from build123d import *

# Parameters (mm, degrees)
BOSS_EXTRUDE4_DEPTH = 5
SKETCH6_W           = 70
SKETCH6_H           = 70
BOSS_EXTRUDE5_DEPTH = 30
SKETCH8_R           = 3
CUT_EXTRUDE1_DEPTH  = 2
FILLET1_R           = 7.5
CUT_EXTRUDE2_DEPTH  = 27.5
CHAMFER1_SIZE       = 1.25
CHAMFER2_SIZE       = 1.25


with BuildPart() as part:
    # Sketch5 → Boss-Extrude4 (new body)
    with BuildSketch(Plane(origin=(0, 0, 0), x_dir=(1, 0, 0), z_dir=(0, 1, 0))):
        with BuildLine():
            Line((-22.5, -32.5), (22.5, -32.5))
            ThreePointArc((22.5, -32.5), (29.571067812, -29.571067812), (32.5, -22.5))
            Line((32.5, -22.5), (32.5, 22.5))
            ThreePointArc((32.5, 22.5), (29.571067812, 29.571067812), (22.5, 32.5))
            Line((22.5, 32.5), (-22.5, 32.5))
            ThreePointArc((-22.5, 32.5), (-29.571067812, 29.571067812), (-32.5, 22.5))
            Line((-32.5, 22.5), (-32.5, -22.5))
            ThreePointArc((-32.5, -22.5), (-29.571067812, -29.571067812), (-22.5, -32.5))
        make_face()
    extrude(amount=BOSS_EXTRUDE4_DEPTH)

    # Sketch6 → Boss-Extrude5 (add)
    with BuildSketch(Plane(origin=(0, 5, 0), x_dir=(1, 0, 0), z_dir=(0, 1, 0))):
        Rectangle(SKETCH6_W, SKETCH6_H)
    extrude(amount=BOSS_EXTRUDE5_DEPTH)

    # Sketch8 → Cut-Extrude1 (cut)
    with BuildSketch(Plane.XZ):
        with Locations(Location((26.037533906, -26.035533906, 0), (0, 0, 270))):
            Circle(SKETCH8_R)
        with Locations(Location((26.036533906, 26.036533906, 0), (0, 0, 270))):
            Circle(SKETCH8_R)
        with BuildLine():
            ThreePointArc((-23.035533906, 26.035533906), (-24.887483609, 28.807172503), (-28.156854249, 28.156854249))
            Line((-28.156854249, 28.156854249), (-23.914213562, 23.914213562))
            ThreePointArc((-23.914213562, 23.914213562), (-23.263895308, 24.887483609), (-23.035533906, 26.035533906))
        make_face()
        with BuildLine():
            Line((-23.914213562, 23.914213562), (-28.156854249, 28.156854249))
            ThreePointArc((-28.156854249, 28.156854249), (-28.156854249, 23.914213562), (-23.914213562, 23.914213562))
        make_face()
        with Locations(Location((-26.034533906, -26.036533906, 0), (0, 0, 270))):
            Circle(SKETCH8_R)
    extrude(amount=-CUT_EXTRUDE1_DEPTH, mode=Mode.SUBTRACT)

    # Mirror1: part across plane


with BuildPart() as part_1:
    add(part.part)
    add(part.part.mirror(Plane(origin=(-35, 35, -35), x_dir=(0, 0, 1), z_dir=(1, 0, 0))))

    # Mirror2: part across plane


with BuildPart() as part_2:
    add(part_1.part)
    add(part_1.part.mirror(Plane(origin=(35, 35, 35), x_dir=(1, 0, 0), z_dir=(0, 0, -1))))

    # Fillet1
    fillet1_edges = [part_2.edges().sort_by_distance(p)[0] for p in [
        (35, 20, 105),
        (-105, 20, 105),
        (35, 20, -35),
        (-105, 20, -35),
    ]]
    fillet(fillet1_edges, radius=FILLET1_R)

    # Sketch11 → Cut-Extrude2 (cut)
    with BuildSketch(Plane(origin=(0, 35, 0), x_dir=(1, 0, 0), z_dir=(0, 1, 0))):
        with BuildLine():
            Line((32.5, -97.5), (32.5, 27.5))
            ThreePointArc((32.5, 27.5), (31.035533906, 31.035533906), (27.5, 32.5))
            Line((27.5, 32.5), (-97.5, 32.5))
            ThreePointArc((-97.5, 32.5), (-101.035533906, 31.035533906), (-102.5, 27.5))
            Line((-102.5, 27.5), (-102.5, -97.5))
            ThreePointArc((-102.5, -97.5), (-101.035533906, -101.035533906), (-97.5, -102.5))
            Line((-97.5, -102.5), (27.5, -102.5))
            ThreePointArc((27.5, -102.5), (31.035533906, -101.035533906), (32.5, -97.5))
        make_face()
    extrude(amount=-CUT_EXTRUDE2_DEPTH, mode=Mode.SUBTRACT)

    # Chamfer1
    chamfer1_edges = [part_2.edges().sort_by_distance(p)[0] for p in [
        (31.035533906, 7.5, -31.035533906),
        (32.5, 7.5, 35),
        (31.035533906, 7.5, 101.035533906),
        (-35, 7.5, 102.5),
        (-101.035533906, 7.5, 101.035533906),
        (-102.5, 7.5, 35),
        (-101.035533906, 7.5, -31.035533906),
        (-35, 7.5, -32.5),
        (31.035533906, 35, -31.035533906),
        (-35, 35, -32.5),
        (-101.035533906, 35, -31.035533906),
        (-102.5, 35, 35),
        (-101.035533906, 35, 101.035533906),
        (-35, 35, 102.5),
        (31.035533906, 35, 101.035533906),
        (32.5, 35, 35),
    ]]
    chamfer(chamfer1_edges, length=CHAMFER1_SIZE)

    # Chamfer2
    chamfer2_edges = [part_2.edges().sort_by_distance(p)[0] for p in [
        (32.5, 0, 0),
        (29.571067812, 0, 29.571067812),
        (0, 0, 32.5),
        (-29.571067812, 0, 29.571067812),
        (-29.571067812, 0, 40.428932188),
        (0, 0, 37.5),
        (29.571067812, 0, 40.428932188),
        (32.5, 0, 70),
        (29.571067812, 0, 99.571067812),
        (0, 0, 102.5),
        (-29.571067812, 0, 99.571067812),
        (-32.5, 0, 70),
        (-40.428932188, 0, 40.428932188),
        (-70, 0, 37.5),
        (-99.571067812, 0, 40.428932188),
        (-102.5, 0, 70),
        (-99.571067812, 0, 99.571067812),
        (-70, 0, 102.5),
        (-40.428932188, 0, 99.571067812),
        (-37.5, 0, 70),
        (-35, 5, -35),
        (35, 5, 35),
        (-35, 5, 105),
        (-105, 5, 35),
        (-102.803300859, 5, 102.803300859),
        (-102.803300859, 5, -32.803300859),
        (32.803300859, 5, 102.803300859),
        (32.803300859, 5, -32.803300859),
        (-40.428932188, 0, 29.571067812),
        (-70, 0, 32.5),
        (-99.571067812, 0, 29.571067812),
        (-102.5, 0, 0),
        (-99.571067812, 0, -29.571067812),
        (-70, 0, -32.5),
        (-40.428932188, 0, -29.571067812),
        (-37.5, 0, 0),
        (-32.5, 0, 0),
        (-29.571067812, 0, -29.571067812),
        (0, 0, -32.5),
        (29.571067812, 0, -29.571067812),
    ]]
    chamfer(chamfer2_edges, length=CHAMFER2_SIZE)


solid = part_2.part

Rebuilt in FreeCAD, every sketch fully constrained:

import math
import FreeCAD as App
import Part
import Sketcher

V = App.Vector
Q = App.Units.Quantity


def edges_at(feature, points):
    """Names of the edges that pass closest to the given points."""
    edges = feature.Shape.Edges
    near = lambda p: min(range(len(edges)), key=lambda i: edges[i].distToShape(Part.Vertex(*p))[0])
    return sorted({f"Edge{near(p) + 1}" for p in points})


def add_polygon(sketch, points):
    """Adds a closed chain of lines whose ends are joined by coincident constraints."""
    first, n = sketch.GeometryCount, len(points)
    for a, b in zip(points, points[1:] + points[:1]):
        sketch.addGeometry(Part.LineSegment(App.Vector(*a, 0), App.Vector(*b, 0)), False)
    for i in range(n):
        sketch.addConstraint(Sketcher.Constraint("Coincident", first + i, 2, first + (i + 1) % n, 1))

doc = App.newDocument("Part")
params = doc.addObject("Spreadsheet::Sheet", "Params")
for row, (alias, value) in enumerate([
    ("sketch1_radius", "10 mm"),
    ("sketch1_width", "45 mm"),
    ("pad1_length", "5 mm"),
    ("sketch2_width", "70 mm"),
    ("pad2_length", "30 mm"),
    ("sketch3_diameter", "6 mm"),
    ("pocket1_length", "2 mm"),
    ("fillet_radius", "7.5 mm"),
    ("sketch4_radius", "5 mm"),
    ("sketch4_width", "125 mm"),
    ("pocket2_length", "27.5 mm"),
    ("chamfer_size", "1.25 mm"),
    ("chamfer2_size", "1.25 mm"),
], start=1):
    params.set(f"A{row}", alias)
    params.set(f"B{row}", "=" + value)
    params.setAlias(f"B{row}", alias)

body = doc.addObject("PartDesign::Body", "Body")

# Sketch on XZ plane
sketch1 = body.newObject("Sketcher::SketchObject", "Sketch")
sketch1.AttachmentSupport = (doc.getObject("XZ_Plane"), [""])
sketch1.MapMode = "FlatFace"
sketch1.addGeometry([
    Part.LineSegment(V(-22, 32, 0), V(22, 32, 0)),  # 0
    Part.ArcOfCircle(Part.Circle(V(22, 22, 0), V(0, 0, 1), 10), math.radians(0), math.radians(90)),  # 1
    Part.LineSegment(V(32, 22, 0), V(32, -22, 0)),  # 2
    Part.ArcOfCircle(Part.Circle(V(22, -22, 0), V(0, 0, 1), 10), math.radians(-90), math.radians(0)),  # 3
    Part.LineSegment(V(22, -32, 0), V(-22, -32, 0)),  # 4
    Part.ArcOfCircle(Part.Circle(V(-22, -22, 0), V(0, 0, 1), 10), math.radians(180), math.radians(270)),  # 5
    Part.LineSegment(V(-32, -22, 0), V(-32, 22, 0)),  # 6
    Part.ArcOfCircle(Part.Circle(V(-22, 22, 0), V(0, 0, 1), 10), math.radians(90), math.radians(180)),  # 7
], False)
sketch1.addConstraint([
    Sketcher.Constraint("Tangent", 0, 2, 1, 2),
    Sketcher.Constraint("Tangent", 1, 1, 2, 1),
    Sketcher.Constraint("Tangent", 2, 2, 3, 2),
    Sketcher.Constraint("Tangent", 3, 1, 4, 1),
    Sketcher.Constraint("Tangent", 4, 2, 5, 2),
    Sketcher.Constraint("Tangent", 5, 1, 6, 1),
    Sketcher.Constraint("Tangent", 6, 2, 7, 2),
    Sketcher.Constraint("Tangent", 7, 1, 0, 1),
    Sketcher.Constraint("Horizontal", 0),
    Sketcher.Constraint("Vertical", 2),
    Sketcher.Constraint("Horizontal", 4),
    Sketcher.Constraint("Vertical", 6),
    Sketcher.Constraint("Equal", 1, 3),
    Sketcher.Constraint("Equal", 3, 5),
    Sketcher.Constraint("Equal", 5, 7),
    Sketcher.Constraint("Symmetric", 1, 3, 5, 3, -1, 1),
    Sketcher.Constraint("Equal", 4, 2),
    Sketcher.Constraint("Radius", 1, Q("10 mm")),
    Sketcher.Constraint("DistanceX", 0, 1, 0, 2, Q("45 mm")),
])
sketch1.setExpression("Constraints[17]", "Params.sketch1_radius")
sketch1.setExpression("Constraints[18]", "Params.sketch1_width")
pad1 = body.newObject("PartDesign::Pad", "Pad")
pad1.Profile = sketch1
pad1.setExpression("Length", "Params.pad1_length")
pad1.Reversed = True

# Sketch on XZ plane
sketch2 = body.newObject("Sketcher::SketchObject", "Sketch001")
sketch2.AttachmentSupport = (doc.getObject("XZ_Plane"), [""])
sketch2.MapMode = "FlatFace"
sketch2.AttachmentOffset = App.Placement(V(0, 0, -5), App.Rotation())
add_polygon(sketch2, [(-35, -35), (-35, 35), (35, 35), (35, -35)])  # lines 0-3
sketch2.addConstraint([
    Sketcher.Constraint("Vertical", 0),
    Sketcher.Constraint("Horizontal", 1),
    Sketcher.Constraint("Vertical", 2),
    Sketcher.Constraint("Horizontal", 3),
    Sketcher.Constraint("Symmetric", 0, 2, 2, 2, -1, 1),
    Sketcher.Constraint("Equal", 3, 0),
    Sketcher.Constraint("DistanceX", 1, 1, 1, 2, Q("70 mm")),
])
sketch2.setExpression("Constraints[10]", "Params.sketch2_width")
pad2 = body.newObject("PartDesign::Pad", "Pad001")
pad2.Profile = sketch2
pad2.setExpression("Length", "Params.pad2_length")
pad2.Reversed = True

# Sketch on XZ plane
sketch3 = body.newObject("Sketcher::SketchObject", "Sketch002")
sketch3.AttachmentSupport = (doc.getObject("XZ_Plane"), [""])
sketch3.MapMode = "FlatFace"
sketch3.addGeometry([
    Part.Circle(V(26, -26, 0), V(0, 0, 1), 3),  # 0
    Part.Circle(V(26, 26, 0), V(0, 0, 1), 3),  # 1
    Part.ArcOfCircle(Part.Circle(V(-26, 26, 0), V(0, 0, 1), 3), math.radians(0), math.radians(135)),  # 2
    Part.ArcOfCircle(Part.Circle(V(-26, 26, 0), V(0, 0, 1), 3), math.radians(135), math.radians(315)),  # 3
    Part.ArcOfCircle(Part.Circle(V(-26, 26, 0), V(0, 0, 1), 3), math.radians(-45), math.radians(0)),  # 4
    Part.Circle(V(-26, -26, 0), V(0, 0, 1), 3),  # 5
], False)
sketch3.addConstraint([
    Sketcher.Constraint("Tangent", 2, 2, 3, 1),
    Sketcher.Constraint("Tangent", 3, 2, 4, 1),
    Sketcher.Constraint("Tangent", 4, 2, 2, 1),
    Sketcher.Constraint("Equal", 0, 1),
    Sketcher.Constraint("Equal", 1, 2),
    Sketcher.Constraint("Equal", 4, 5),
    Sketcher.Constraint("Horizontal", 3, 3, 4, 2),
    Sketcher.Constraint("Diameter", 0, Q("6 mm")),
    Sketcher.Constraint("DistanceX", 1, 3, 0, 3, Q("0.001 mm")),
    Sketcher.Constraint("DistanceY", 2, 3, 1, 3, Q("0.001 mm")),
    Sketcher.Constraint("DistanceX", 3, 3, 5, 3, Q("0.001 mm")),
    Sketcher.Constraint("DistanceY", 5, 3, 0, 3, Q("0.001 mm")),
    Sketcher.Constraint("DistanceX", 2, 2, 2, 3, Q("2.12132 mm")),
    Sketcher.Constraint("DistanceX", 2, 2, 1, 3, Q("54.193388 mm")),
    Sketcher.Constraint("DistanceY", 5, 3, 2, 2, Q("54.193388 mm")),
    Sketcher.Constraint("DistanceX", 3, 3, 3, 2, Q("2.12132 mm")),
    Sketcher.Constraint("DistanceX", -1, 1, 0, 3, Q("26.037534 mm")),
    Sketcher.Constraint("DistanceY", 0, 3, -1, 1, Q("26.035534 mm")),
])
sketch3.setExpression("Constraints[7]", "Params.sketch3_diameter")
pocket1 = body.newObject("PartDesign::Pocket", "Pocket")
pocket1.Profile = sketch3
pocket1.setExpression("Length", "Params.pocket1_length")
body2 = doc.addObject("PartDesign::Body", "Body001")
doc.recompute()

body2.BaseFeature = body
doc.recompute()

mirroring = doc.addObject("Part::Mirroring", "Mirroring")
mirroring.Source = body
mirroring.Base = V(-35, 35, -35)
mirroring.Normal = V(1, 0, 0)
body3 = doc.addObject("PartDesign::Body", "Body002")
body3.BaseFeature = mirroring
boolean = body2.newObject("PartDesign::Boolean", "Boolean")
boolean.Type = "Fuse"
boolean.addObjects([body3])
doc.recompute()
body4 = doc.addObject("PartDesign::Body", "Body003")
doc.recompute()

body4.BaseFeature = body2
doc.recompute()

mirroring2 = doc.addObject("Part::Mirroring", "Mirroring001")
mirroring2.Source = body2
mirroring2.Base = V(35, 35, 35)
mirroring2.Normal = V(0, 0, -1)
body5 = doc.addObject("PartDesign::Body", "Body004")
body5.BaseFeature = mirroring2
boolean2 = body4.newObject("PartDesign::Boolean", "Boolean001")
boolean2.Type = "Fuse"
boolean2.addObjects([body5])
doc.recompute()

fillet = body4.newObject("PartDesign::Fillet", "Fillet")
fillet.Base = (boolean2, edges_at(boolean2, [
    (35, 20, 105),
    (-105, 20, 105),
    (35, 20, -35),
    (-105, 20, -35),
]))
fillet.setExpression("Radius", "Params.fillet_radius")

# Sketch on XZ plane
sketch4 = body4.newObject("Sketcher::SketchObject", "Sketch003")
sketch4.AttachmentSupport = (doc.getObject("XZ_Plane003"), [""])
sketch4.MapMode = "FlatFace"
sketch4.AttachmentOffset = App.Placement(V(0, 0, -35), App.Rotation())
sketch4.addGeometry([
    Part.LineSegment(V(32, 98, 0), V(32, -28, 0)),  # 0
    Part.ArcOfCircle(Part.Circle(V(28, -28, 0), V(0, 0, 1), 5), math.radians(-90), math.radians(0)),  # 1
    Part.LineSegment(V(28, -32, 0), V(-98, -32, 0)),  # 2
    Part.ArcOfCircle(Part.Circle(V(-98, -28, 0), V(0, 0, 1), 5), math.radians(180), math.radians(270)),  # 3
    Part.LineSegment(V(-102, -28, 0), V(-102, 98, 0)),  # 4
    Part.ArcOfCircle(Part.Circle(V(-98, 98, 0), V(0, 0, 1), 5), math.radians(90), math.radians(180)),  # 5
    Part.LineSegment(V(-98, 102, 0), V(28, 102, 0)),  # 6
    Part.ArcOfCircle(Part.Circle(V(28, 98, 0), V(0, 0, 1), 5), math.radians(0), math.radians(90)),  # 7
], False)
sketch4.addConstraint([
    Sketcher.Constraint("Tangent", 0, 2, 1, 2),
    Sketcher.Constraint("Tangent", 1, 1, 2, 1),
    Sketcher.Constraint("Tangent", 2, 2, 3, 2),
    Sketcher.Constraint("Tangent", 3, 1, 4, 1),
    Sketcher.Constraint("Tangent", 4, 2, 5, 2),
    Sketcher.Constraint("Tangent", 5, 1, 6, 1),
    Sketcher.Constraint("Tangent", 6, 2, 7, 2),
    Sketcher.Constraint("Tangent", 7, 1, 0, 1),
    Sketcher.Constraint("Vertical", 0),
    Sketcher.Constraint("Horizontal", 2),
    Sketcher.Constraint("Vertical", 4),
    Sketcher.Constraint("Horizontal", 6),
    Sketcher.Constraint("Equal", 1, 3),
    Sketcher.Constraint("Equal", 3, 5),
    Sketcher.Constraint("Equal", 5, 7),
    Sketcher.Constraint("Equal", 6, 0),
    Sketcher.Constraint("Radius", 1, Q("5 mm")),
    Sketcher.Constraint("DistanceX", 2, 2, 2, 1, Q("125 mm")),
    Sketcher.Constraint("DistanceX", -1, 1, 1, 3, Q("27.5 mm")),
    Sketcher.Constraint("DistanceY", 1, 3, -1, 1, Q("27.5 mm")),
])
sketch4.setExpression("Constraints[16]", "Params.sketch4_radius")
sketch4.setExpression("Constraints[17]", "Params.sketch4_width")
pocket2 = body4.newObject("PartDesign::Pocket", "Pocket001")
pocket2.Profile = sketch4
pocket2.setExpression("Length", "Params.pocket2_length")
pocket2.Reversed = True
doc.recompute()

chamfer = body4.newObject("PartDesign::Chamfer", "Chamfer")
chamfer.Base = (pocket2, edges_at(pocket2, [
    (31.036, 7.5, -31.036),
    (32.5, 7.5, 35),
    (31.036, 7.5, 101.036),
    (-35, 7.5, 102.5),
    (-101.036, 7.5, 101.036),
    (-102.5, 7.5, 35),
    (-101.036, 7.5, -31.036),
    (-35, 7.5, -32.5),
    (31.036, 35, -31.036),
    (-35, 35, -32.5),
    (-101.036, 35, -31.036),
    (-102.5, 35, 35),
    (-101.036, 35, 101.036),
    (-35, 35, 102.5),
    (31.036, 35, 101.036),
    (32.5, 35, 35),
]))
chamfer.setExpression("Size", "Params.chamfer_size")
doc.recompute()

chamfer2 = body4.newObject("PartDesign::Chamfer", "Chamfer001")
chamfer2.Base = (chamfer, edges_at(chamfer, [
    (32.5, 0, 0),
    (29.571, 0, 29.571),
    (0, 0, 32.5),
    (-29.571, 0, 29.571),
    (-29.571, 0, 40.429),
    (0, 0, 37.5),
    (29.571, 0, 40.429),
    (32.5, 0, 70),
    (29.571, 0, 99.571),
    (0, 0, 102.5),
    (-29.571, 0, 99.571),
    (-32.5, 0, 70),
    (-40.429, 0, 40.429),
    (-70, 0, 37.5),
    (-99.571, 0, 40.429),
    (-102.5, 0, 70),
    (-99.571, 0, 99.571),
    (-70, 0, 102.5),
    (-40.429, 0, 99.571),
    (-37.5, 0, 70),
    (-35, 5, -35),
    (35, 5, 35),
    (-35, 5, 105),
    (-105, 5, 35),
    (-102.803, 5, 102.803),
    (-102.803, 5, -32.803),
    (32.803, 5, 102.803),
    (32.803, 5, -32.803),
    (-40.429, 0, 29.571),
    (-70, 0, 32.5),
    (-99.571, 0, 29.571),
    (-102.5, 0, 0),
    (-99.571, 0, -29.571),
    (-70, 0, -32.5),
    (-40.429, 0, -29.571),
    (-37.5, 0, 0),
    (-32.5, 0, 0),
    (-29.571, 0, -29.571),
    (0, 0, -32.5),
    (29.571, 0, -29.571),
]))
chamfer2.setExpression("Size", "Params.chamfer2_size")
mirroring.Visibility = False
mirroring2.Visibility = False

doc.recompute()
